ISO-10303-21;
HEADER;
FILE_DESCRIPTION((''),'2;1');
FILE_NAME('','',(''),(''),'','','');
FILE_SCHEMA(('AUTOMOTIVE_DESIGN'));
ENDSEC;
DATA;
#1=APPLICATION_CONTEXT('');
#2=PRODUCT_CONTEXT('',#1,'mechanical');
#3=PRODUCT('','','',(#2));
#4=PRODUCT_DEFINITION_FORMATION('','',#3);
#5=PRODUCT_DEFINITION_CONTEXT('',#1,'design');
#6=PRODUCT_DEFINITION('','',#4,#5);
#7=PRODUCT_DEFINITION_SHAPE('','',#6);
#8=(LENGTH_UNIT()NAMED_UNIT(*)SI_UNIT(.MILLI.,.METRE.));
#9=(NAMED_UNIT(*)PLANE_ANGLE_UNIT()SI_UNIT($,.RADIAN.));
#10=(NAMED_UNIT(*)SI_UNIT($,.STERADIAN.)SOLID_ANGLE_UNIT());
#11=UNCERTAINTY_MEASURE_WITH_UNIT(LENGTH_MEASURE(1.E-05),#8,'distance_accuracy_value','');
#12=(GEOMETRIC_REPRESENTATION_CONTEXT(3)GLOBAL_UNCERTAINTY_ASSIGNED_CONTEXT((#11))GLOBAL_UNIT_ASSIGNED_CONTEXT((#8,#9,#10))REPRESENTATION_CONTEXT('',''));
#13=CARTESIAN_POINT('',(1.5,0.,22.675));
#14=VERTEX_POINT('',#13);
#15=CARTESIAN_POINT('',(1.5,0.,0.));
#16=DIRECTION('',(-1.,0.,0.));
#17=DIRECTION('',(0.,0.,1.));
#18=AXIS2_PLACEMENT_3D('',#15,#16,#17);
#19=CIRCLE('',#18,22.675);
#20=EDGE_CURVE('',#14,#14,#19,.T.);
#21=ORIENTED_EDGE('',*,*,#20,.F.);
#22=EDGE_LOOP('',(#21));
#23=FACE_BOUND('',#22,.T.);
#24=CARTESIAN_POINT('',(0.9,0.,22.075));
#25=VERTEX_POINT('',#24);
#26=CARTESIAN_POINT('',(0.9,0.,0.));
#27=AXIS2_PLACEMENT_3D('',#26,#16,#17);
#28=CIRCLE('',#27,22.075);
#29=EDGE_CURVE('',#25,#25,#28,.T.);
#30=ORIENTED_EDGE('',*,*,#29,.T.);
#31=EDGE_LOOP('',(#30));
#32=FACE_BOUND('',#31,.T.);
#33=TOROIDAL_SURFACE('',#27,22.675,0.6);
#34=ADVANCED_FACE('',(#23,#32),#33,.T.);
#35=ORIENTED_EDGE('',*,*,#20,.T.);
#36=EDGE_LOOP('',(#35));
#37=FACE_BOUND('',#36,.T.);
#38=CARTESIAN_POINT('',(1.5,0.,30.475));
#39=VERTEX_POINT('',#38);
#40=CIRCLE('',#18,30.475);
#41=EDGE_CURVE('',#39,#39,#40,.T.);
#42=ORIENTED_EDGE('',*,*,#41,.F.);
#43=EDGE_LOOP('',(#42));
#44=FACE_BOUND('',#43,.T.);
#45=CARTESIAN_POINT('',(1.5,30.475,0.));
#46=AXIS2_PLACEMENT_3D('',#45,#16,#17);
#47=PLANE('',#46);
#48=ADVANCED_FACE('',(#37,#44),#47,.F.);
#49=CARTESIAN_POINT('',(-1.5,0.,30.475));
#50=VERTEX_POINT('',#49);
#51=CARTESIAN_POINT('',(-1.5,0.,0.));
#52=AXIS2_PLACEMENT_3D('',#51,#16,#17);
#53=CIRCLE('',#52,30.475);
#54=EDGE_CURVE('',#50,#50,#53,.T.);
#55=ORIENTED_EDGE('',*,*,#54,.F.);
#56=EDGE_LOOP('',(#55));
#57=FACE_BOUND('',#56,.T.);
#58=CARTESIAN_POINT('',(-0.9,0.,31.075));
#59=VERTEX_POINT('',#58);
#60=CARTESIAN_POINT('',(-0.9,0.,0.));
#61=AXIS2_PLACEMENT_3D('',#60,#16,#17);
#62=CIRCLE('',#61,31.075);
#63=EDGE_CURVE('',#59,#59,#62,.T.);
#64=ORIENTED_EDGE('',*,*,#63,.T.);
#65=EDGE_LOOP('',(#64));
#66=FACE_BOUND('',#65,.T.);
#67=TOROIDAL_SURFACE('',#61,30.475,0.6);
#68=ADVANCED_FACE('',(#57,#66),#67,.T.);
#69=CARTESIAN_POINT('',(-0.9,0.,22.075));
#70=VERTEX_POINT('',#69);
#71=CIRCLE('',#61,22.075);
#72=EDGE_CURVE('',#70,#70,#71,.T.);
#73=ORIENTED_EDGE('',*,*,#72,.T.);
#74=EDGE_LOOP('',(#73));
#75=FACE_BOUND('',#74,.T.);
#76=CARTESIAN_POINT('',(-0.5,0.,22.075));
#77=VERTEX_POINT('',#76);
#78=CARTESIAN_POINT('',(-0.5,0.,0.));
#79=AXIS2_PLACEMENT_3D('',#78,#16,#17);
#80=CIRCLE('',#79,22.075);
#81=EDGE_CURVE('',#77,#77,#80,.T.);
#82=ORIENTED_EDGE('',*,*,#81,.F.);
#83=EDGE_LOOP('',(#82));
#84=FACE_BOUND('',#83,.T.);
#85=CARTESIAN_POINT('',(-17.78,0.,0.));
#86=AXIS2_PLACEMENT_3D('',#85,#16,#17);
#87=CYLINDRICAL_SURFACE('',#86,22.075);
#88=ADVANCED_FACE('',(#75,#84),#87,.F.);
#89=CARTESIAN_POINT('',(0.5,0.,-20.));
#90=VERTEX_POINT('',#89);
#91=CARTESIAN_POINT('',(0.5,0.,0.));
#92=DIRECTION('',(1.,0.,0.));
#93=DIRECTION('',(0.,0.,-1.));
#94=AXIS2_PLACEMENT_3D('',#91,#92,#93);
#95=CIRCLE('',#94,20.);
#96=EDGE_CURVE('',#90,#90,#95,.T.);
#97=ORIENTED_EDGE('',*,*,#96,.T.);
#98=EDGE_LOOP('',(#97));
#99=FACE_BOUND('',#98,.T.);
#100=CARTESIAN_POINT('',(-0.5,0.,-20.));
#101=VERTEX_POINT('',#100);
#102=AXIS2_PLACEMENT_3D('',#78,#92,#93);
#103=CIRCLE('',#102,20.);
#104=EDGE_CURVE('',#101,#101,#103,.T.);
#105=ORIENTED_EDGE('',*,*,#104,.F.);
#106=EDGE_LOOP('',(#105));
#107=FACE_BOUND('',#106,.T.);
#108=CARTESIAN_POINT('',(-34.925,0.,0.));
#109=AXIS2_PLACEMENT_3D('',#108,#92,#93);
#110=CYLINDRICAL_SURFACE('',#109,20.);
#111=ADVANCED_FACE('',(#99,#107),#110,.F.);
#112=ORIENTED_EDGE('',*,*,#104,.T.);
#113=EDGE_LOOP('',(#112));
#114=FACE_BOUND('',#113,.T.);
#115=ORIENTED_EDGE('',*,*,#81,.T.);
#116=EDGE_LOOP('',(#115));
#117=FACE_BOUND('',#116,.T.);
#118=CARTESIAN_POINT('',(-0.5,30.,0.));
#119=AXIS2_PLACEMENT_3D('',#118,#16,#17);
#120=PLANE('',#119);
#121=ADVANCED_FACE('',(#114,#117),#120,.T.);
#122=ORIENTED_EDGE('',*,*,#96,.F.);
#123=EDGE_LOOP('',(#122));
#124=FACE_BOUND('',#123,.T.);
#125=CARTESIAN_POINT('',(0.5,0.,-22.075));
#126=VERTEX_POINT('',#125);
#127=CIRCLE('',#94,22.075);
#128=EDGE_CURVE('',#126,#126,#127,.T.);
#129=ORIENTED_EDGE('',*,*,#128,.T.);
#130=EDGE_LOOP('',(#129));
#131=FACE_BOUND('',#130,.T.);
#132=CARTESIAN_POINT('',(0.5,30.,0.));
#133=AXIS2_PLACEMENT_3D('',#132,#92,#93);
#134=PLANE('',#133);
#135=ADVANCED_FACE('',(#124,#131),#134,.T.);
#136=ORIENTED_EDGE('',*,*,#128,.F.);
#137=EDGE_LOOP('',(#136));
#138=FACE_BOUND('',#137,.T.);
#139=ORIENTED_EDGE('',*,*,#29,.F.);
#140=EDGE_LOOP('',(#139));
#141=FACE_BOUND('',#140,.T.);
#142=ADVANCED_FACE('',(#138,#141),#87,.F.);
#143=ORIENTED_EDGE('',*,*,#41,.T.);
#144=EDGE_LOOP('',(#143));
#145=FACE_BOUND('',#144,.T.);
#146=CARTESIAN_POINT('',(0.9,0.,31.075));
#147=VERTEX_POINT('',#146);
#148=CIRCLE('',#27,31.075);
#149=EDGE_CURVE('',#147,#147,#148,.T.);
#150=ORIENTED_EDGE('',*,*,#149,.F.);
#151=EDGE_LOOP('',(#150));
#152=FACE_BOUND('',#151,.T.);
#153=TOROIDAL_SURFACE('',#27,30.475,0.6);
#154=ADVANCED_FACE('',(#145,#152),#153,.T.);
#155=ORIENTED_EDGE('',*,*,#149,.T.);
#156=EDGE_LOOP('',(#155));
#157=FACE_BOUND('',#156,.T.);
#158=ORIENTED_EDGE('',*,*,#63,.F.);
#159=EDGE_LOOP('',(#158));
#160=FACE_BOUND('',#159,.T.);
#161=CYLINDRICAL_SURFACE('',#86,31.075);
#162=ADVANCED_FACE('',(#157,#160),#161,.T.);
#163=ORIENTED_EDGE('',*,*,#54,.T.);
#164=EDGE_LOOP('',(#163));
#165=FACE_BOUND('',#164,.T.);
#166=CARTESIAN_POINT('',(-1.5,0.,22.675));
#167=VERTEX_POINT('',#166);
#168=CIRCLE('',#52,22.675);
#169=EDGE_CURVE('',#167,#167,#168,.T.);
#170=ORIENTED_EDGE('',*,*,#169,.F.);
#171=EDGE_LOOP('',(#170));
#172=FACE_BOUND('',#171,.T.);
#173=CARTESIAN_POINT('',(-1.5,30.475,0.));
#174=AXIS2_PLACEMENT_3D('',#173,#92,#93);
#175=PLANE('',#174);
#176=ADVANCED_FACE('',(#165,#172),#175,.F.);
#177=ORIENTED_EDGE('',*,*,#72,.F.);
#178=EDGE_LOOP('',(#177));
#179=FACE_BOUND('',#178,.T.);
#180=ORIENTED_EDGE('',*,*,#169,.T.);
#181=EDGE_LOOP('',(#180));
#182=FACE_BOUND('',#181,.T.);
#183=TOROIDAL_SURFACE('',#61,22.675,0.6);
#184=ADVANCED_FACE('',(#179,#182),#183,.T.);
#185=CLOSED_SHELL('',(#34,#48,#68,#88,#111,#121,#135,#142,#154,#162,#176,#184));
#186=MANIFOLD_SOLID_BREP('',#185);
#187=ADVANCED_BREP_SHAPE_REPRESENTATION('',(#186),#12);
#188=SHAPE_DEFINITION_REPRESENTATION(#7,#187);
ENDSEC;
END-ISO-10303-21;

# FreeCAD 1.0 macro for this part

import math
import FreeCAD as App
import Part
import Sketcher

doc = App.newDocument("Part")
params = doc.addObject("Spreadsheet::Sheet", "Params")
for row, (alias, value) in enumerate([
    ("sketch1_width", "1 mm"),
    ("sketch1_height", "10 mm"),
    ("revolution_angle", "360 deg"),
    ("sketch2_radius", "0.6 mm"),
    ("sketch2_width", "1.8 mm"),
    ("sketch2_height", "7.8 mm"),
    ("revolution2_angle", "360 deg"),
], start=1):
    params.set(f"A{row}", alias)
    params.set(f"B{row}", "=" + value)
    params.setAlias(f"B{row}", alias)

body = doc.addObject("PartDesign::Body", "Body")

# Sketch on XY plane
sketch1 = doc.addObject("Sketcher::SketchObject", "Sketch")
body.addObject(sketch1)
sketch1.AttachmentSupport = (doc.XY_Plane, [""])
sketch1.MapMode = "FlatFace"
sketch1.addGeometry(Part.LineSegment(App.Vector(-0.5, 30, 0), App.Vector(-0.5, 20, 0)), False)
sketch1.addGeometry(Part.LineSegment(App.Vector(-0.5, 20, 0), App.Vector(0.5, 20, 0)), False)
sketch1.addGeometry(Part.LineSegment(App.Vector(0.5, 20, 0), App.Vector(0.5, 30, 0)), False)
sketch1.addGeometry(Part.LineSegment(App.Vector(0.5, 30, 0), App.Vector(-0.5, 30, 0)), False)
sketch1.addConstraint(Sketcher.Constraint("Coincident", 0, 2, 1, 1))
sketch1.addConstraint(Sketcher.Constraint("Coincident", 1, 2, 2, 1))
sketch1.addConstraint(Sketcher.Constraint("Coincident", 2, 2, 3, 1))
sketch1.addConstraint(Sketcher.Constraint("Coincident", 3, 2, 0, 1))
sketch1.addConstraint(Sketcher.Constraint("Vertical", 0))
sketch1.addConstraint(Sketcher.Constraint("Horizontal", 1))
sketch1.addConstraint(Sketcher.Constraint("Vertical", 2))
sketch1.addConstraint(Sketcher.Constraint("Horizontal", 3))
sketch1.addConstraint(Sketcher.Constraint("DistanceX", 1, 1, 1, 2, 1.0))
sketch1.addConstraint(Sketcher.Constraint("DistanceY", 0, 2, 0, 1, 10.0))
sketch1.addConstraint(Sketcher.Constraint("DistanceY", -1, 1, 0, 2, 20.0))
sketch1.addConstraint(Sketcher.Constraint("DistanceX", 0, 2, -1, 1, 0.5))
sketch1.setExpression("Constraints[8]", "Params.sketch1_width")
sketch1.setExpression("Constraints[9]", "Params.sketch1_height")
revolution = doc.addObject("PartDesign::Revolution", "Revolution")
body.addObject(revolution)
revolution.Profile = sketch1
revolution.ReferenceAxis = (sketch1, ["H_Axis"])
revolution.setExpression("Angle", "Params.revolution_angle")

# Sketch on XY plane
sketch2 = doc.addObject("Sketcher::SketchObject", "Sketch001")
body.addObject(sketch2)
sketch2.AttachmentSupport = (doc.XY_Plane, [""])
sketch2.MapMode = "FlatFace"
sketch2.addGeometry(Part.LineSegment(App.Vector(0.9, 31.1, 0), App.Vector(-0.9, 31.1, 0)), False)
sketch2.addGeometry(Part.ArcOfCircle(Part.Circle(App.Vector(-0.9, 30.5, 0), App.Vector(0, 0, 1), 0.6), math.radians(90), math.radians(180)), False)
sketch2.addGeometry(Part.LineSegment(App.Vector(-1.5, 30.5, 0), App.Vector(-1.5, 22.7, 0)), False)
sketch2.addGeometry(Part.ArcOfCircle(Part.Circle(App.Vector(-0.9, 22.7, 0), App.Vector(0, 0, 1), 0.6), math.radians(180), math.radians(270)), False)
sketch2.addGeometry(Part.LineSegment(App.Vector(-0.9, 22.1, 0), App.Vector(0.9, 22.1, 0)), False)
sketch2.addGeometry(Part.ArcOfCircle(Part.Circle(App.Vector(0.9, 22.7, 0), App.Vector(0, 0, 1), 0.6), math.radians(-90), math.radians(0)), False)
sketch2.addGeometry(Part.LineSegment(App.Vector(1.5, 22.7, 0), App.Vector(1.5, 30.5, 0)), False)
sketch2.addGeometry(Part.ArcOfCircle(Part.Circle(App.Vector(0.9, 30.5, 0), App.Vector(0, 0, 1), 0.6), math.radians(0), math.radians(90)), False)
sketch2.addConstraint(Sketcher.Constraint("Tangent", 0, 2, 1, 1))
sketch2.addConstraint(Sketcher.Constraint("Tangent", 1, 2, 2, 1))
sketch2.addConstraint(Sketcher.Constraint("Tangent", 2, 2, 3, 1))
sketch2.addConstraint(Sketcher.Constraint("Tangent", 3, 2, 4, 1))
sketch2.addConstraint(Sketcher.Constraint("Tangent", 4, 2, 5, 1))
sketch2.addConstraint(Sketcher.Constraint("Tangent", 5, 2, 6, 1))
sketch2.addConstraint(Sketcher.Constraint("Tangent", 6, 2, 7, 1))
sketch2.addConstraint(Sketcher.Constraint("Tangent", 7, 2, 0, 1))
sketch2.addConstraint(Sketcher.Constraint("Horizontal", 0))
sketch2.addConstraint(Sketcher.Constraint("Vertical", 2))
sketch2.addConstraint(Sketcher.Constraint("Horizontal", 4))
sketch2.addConstraint(Sketcher.Constraint("Vertical", 6))
sketch2.addConstraint(Sketcher.Constraint("Equal", 1, 3))
sketch2.addConstraint(Sketcher.Constraint("Equal", 3, 5))
sketch2.addConstraint(Sketcher.Constraint("Equal", 5, 7))
sketch2.addConstraint(Sketcher.Constraint("Radius", 1, 0.6))
sketch2.addConstraint(Sketcher.Constraint("DistanceX", 0, 2, 0, 1, 1.8))
sketch2.addConstraint(Sketcher.Constraint("DistanceY", 2, 2, 2, 1, 7.8))
sketch2.addConstraint(Sketcher.Constraint("DistanceX", 1, 3, -1, 1, 0.9))
sketch2.addConstraint(Sketcher.Constraint("DistanceY", -1, 1, 1, 3, 30.475))
sketch2.setExpression("Constraints[15]", "Params.sketch2_radius")
sketch2.setExpression("Constraints[16]", "Params.sketch2_width")
sketch2.setExpression("Constraints[17]", "Params.sketch2_height")
revolution2 = doc.addObject("PartDesign::Revolution", "Revolution001")
body.addObject(revolution2)
revolution2.Profile = sketch2
revolution2.ReferenceAxis = (sketch2, ["H_Axis"])
revolution2.setExpression("Angle", "Params.revolution2_angle")

doc.recompute()
